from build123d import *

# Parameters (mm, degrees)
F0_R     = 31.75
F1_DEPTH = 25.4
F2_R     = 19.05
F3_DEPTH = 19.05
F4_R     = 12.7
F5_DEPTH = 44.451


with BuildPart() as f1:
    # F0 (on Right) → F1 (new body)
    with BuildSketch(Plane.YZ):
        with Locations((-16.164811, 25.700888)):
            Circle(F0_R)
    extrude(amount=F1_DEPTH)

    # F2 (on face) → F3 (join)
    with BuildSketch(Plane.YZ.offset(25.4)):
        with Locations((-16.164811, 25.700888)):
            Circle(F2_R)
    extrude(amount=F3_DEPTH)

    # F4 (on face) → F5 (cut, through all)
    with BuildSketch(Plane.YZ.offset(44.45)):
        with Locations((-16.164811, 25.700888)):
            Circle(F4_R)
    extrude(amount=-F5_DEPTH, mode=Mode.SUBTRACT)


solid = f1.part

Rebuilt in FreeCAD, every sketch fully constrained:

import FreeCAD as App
import Part
import Sketcher
Q = App.Units.Quantity

doc = App.newDocument("Part")
body = doc.addObject("PartDesign::Body", "Body")

# Sketch on YZ plane
sketch1 = body.newObject("Sketcher::SketchObject", "Sketch")
sketch1.AttachmentSupport = (doc.getObject("YZ_Plane"), [""])
sketch1.MapMode = "FlatFace"
sketch1.addGeometry(Part.Circle(App.Vector(-16, 26, 0), App.Vector(0, 0, 1), 32), False)
sketch1.addConstraint(Sketcher.Constraint("Diameter", 0, Q("2.5 in")))
sketch1.addConstraint(Sketcher.Constraint("DistanceX", 0, 3, -1, 1, 16.164811))
sketch1.addConstraint(Sketcher.Constraint("DistanceY", -1, 1, 0, 3, 25.700888))
pad1 = body.newObject("PartDesign::Pad", "Pad")
pad1.Profile = sketch1
pad1.Length = Q("1 in")

# Sketch on YZ plane
sketch2 = body.newObject("Sketcher::SketchObject", "Sketch001")
sketch2.AttachmentSupport = (doc.getObject("YZ_Plane"), [""])
sketch2.MapMode = "FlatFace"
sketch2.AttachmentOffset = App.Placement(App.Vector(0, 0, 1 * 25.4), App.Rotation())
sketch2.addGeometry(Part.Circle(App.Vector(-16, 26, 0), App.Vector(0, 0, 1), 19), False)
sketch2.addConstraint(Sketcher.Constraint("Diameter", 0, Q("1.5 in")))
sketch2.addConstraint(Sketcher.Constraint("DistanceX", 0, 3, -1, 1, 16.164811))
sketch2.addConstraint(Sketcher.Constraint("DistanceY", -1, 1, 0, 3, 25.700888))
pad2 = body.newObject("PartDesign::Pad", "Pad001")
pad2.Profile = sketch2
pad2.Length = Q("0.75 in")

# Sketch on YZ plane
sketch3 = body.newObject("Sketcher::SketchObject", "Sketch002")
sketch3.AttachmentSupport = (doc.getObject("YZ_Plane"), [""])
sketch3.MapMode = "FlatFace"
sketch3.AttachmentOffset = App.Placement(App.Vector(0, 0, 1.75 * 25.4), App.Rotation())
sketch3.addGeometry(Part.Circle(App.Vector(-16, 26, 0), App.Vector(0, 0, 1), 13), False)
sketch3.addConstraint(Sketcher.Constraint("Diameter", 0, Q("1 in")))
sketch3.addConstraint(Sketcher.Constraint("DistanceX", 0, 3, -1, 1, 16.164811))
sketch3.addConstraint(Sketcher.Constraint("DistanceY", -1, 1, 0, 3, 25.700888))
pocket1 = body.newObject("PartDesign::Pocket", "Pocket")
pocket1.Profile = sketch3
pocket1.Type = "ThroughAll"

doc.recompute()
